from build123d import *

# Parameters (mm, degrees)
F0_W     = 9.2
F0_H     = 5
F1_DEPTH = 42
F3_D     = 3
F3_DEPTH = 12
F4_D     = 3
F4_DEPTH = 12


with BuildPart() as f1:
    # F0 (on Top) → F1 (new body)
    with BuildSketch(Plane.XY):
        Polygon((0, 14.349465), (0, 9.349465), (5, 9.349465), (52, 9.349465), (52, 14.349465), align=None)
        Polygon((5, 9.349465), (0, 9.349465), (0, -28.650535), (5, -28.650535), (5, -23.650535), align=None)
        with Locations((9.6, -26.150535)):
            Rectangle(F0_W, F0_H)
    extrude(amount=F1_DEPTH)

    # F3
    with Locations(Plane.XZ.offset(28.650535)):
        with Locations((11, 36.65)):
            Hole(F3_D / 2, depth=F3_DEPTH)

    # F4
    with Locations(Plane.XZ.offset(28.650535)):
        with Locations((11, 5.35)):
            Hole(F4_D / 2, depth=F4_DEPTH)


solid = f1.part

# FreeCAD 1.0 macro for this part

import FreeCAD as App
import Part
import Sketcher
from FreeCAD import Vector


def add_polygon(sketch, points):
    """Adds a closed chain of lines whose ends are joined by coincident constraints."""
    first, n = sketch.GeometryCount, len(points)
    for a, b in zip(points, points[1:] + points[:1]):
        sketch.addGeometry(Part.LineSegment(App.Vector(*a, 0), App.Vector(*b, 0)), False)
    for i in range(n):
        sketch.addConstraint(Sketcher.Constraint("Coincident", first + i, 2, first + (i + 1) % n, 1))

doc = App.newDocument("Part")
params = doc.addObject("Spreadsheet::Sheet", "Params")
for row, (alias, value) in enumerate([
    ("sketch1_width", "47 mm"),
    ("sketch1_width2", "52 mm"),
    ("sketch1_height", "43 mm"),
    ("sketch1_height2", "5 mm"),
    ("sketch1_width3", "14.2 mm"),
    ("pad1_length", "42 mm"),
    ("sketch2_diameter", "3 mm"),
    ("hole_diameter", "3 mm"),
    ("hole_depth", "12 mm"),
    ("sketch3_diameter", "3 mm"),
    ("hole2_diameter", "3 mm"),
    ("hole2_depth", "12 mm"),
], start=1):
    params.set(f"A{row}", alias)
    params.set(f"B{row}", "=" + value)
    params.setAlias(f"B{row}", alias)

body = doc.addObject("PartDesign::Body", "Body")

# Sketch on XY plane
sketch1 = doc.addObject("Sketcher::SketchObject", "Sketch")
body.addObject(sketch1)
sketch1.AttachmentSupport = (doc.XY_Plane, [""])
sketch1.MapMode = "FlatFace"
add_polygon(sketch1, [(0, 14.349465), (0, -28.650535), (14.2, -28.650535), (14.2, -23.650535), (5, -23.650535), (5, 9.349465), (52, 9.349465), (52, 14.349465)])  # lines 0-7
sketch1.addConstraint(Sketcher.Constraint("Vertical", 0))
sketch1.addConstraint(Sketcher.Constraint("Horizontal", 1))
sketch1.addConstraint(Sketcher.Constraint("Vertical", 2))
sketch1.addConstraint(Sketcher.Constraint("Horizontal", 3))
sketch1.addConstraint(Sketcher.Constraint("Vertical", 4))
sketch1.addConstraint(Sketcher.Constraint("Horizontal", 5))
sketch1.addConstraint(Sketcher.Constraint("Vertical", 6))
sketch1.addConstraint(Sketcher.Constraint("Horizontal", 7))
sketch1.addConstraint(Sketcher.Constraint("PointOnObject", 0, 2, -2))
sketch1.addConstraint(Sketcher.Constraint("Equal", 2, 6))
sketch1.addConstraint(Sketcher.Constraint("DistanceX", 5, 1, 5, 2, 47.0))
sketch1.addConstraint(Sketcher.Constraint("DistanceX", 7, 2, 7, 1, 52.0))
sketch1.addConstraint(Sketcher.Constraint("DistanceY", 0, 2, 0, 1, 43.0))
sketch1.addConstraint(Sketcher.Constraint("DistanceY", 2, 1, 2, 2, 5.0))
sketch1.addConstraint(Sketcher.Constraint("DistanceX", 1, 1, 1, 2, 14.2))
sketch1.addConstraint(Sketcher.Constraint("DistanceY", 0, 2, -1, 1, 28.650535))
sketch1.setExpression("Constraints[18]", "Params.sketch1_width")
sketch1.setExpression("Constraints[19]", "Params.sketch1_width2")
sketch1.setExpression("Constraints[20]", "Params.sketch1_height")
sketch1.setExpression("Constraints[21]", "Params.sketch1_height2")
sketch1.setExpression("Constraints[22]", "Params.sketch1_width3")
pad1 = doc.addObject("PartDesign::Pad", "Pad")
body.addObject(pad1)
pad1.Profile = sketch1
pad1.setExpression("Length", "Params.pad1_length")

# Sketch on XZ plane
sketch2 = doc.addObject("Sketcher::SketchObject", "Sketch001")
body.addObject(sketch2)
sketch2.AttachmentSupport = (doc.XZ_Plane, [""])
sketch2.MapMode = "FlatFace"
sketch2.AttachmentOffset = App.Placement(Vector(0, 0, 28.650535), App.Rotation())
sketch2.addGeometry(Part.Circle(Vector(11, 36.65, 0), Vector(0, 0, 1), 1.5), False)
sketch2.addConstraint(Sketcher.Constraint("Diameter", 0, 3.0))
sketch2.addConstraint(Sketcher.Constraint("DistanceX", -1, 1, 0, 3, 11.0))
sketch2.addConstraint(Sketcher.Constraint("DistanceY", -1, 1, 0, 3, 36.65))
sketch2.setExpression("Constraints[0]", "Params.sketch2_diameter")
doc.recompute()
hole = doc.addObject("PartDesign::Hole", "Hole")
body.addObject(hole)
hole.Profile = sketch2
hole.ThreadType = "None"
hole.setExpression("Diameter", "Params.hole_diameter")
hole.DepthType = "Dimension"
hole.setExpression("Depth", "Params.hole_depth")
hole.DrillPoint = "Flat"

# Sketch on XZ plane
sketch3 = doc.addObject("Sketcher::SketchObject", "Sketch002")
body.addObject(sketch3)
sketch3.AttachmentSupport = (doc.XZ_Plane, [""])
sketch3.MapMode = "FlatFace"
sketch3.AttachmentOffset = App.Placement(Vector(0, 0, 28.650535), App.Rotation())
sketch3.addGeometry(Part.Circle(Vector(11, 5.35, 0), Vector(0, 0, 1), 1.5), False)
sketch3.addConstraint(Sketcher.Constraint("Diameter", 0, 3.0))
sketch3.addConstraint(Sketcher.Constraint("DistanceX", -1, 1, 0, 3, 11.0))
sketch3.addConstraint(Sketcher.Constraint("DistanceY", -1, 1, 0, 3, 5.35))
sketch3.setExpression("Constraints[0]", "Params.sketch3_diameter")
doc.recompute()
hole2 = doc.addObject("PartDesign::Hole", "Hole001")
body.addObject(hole2)
hole2.Profile = sketch3
hole2.ThreadType = "None"
hole2.setExpression("Diameter", "Params.hole2_diameter")
hole2.DepthType = "Dimension"
hole2.setExpression("Depth", "Params.hole2_depth")
hole2.DrillPoint = "Flat"

doc.recompute()
